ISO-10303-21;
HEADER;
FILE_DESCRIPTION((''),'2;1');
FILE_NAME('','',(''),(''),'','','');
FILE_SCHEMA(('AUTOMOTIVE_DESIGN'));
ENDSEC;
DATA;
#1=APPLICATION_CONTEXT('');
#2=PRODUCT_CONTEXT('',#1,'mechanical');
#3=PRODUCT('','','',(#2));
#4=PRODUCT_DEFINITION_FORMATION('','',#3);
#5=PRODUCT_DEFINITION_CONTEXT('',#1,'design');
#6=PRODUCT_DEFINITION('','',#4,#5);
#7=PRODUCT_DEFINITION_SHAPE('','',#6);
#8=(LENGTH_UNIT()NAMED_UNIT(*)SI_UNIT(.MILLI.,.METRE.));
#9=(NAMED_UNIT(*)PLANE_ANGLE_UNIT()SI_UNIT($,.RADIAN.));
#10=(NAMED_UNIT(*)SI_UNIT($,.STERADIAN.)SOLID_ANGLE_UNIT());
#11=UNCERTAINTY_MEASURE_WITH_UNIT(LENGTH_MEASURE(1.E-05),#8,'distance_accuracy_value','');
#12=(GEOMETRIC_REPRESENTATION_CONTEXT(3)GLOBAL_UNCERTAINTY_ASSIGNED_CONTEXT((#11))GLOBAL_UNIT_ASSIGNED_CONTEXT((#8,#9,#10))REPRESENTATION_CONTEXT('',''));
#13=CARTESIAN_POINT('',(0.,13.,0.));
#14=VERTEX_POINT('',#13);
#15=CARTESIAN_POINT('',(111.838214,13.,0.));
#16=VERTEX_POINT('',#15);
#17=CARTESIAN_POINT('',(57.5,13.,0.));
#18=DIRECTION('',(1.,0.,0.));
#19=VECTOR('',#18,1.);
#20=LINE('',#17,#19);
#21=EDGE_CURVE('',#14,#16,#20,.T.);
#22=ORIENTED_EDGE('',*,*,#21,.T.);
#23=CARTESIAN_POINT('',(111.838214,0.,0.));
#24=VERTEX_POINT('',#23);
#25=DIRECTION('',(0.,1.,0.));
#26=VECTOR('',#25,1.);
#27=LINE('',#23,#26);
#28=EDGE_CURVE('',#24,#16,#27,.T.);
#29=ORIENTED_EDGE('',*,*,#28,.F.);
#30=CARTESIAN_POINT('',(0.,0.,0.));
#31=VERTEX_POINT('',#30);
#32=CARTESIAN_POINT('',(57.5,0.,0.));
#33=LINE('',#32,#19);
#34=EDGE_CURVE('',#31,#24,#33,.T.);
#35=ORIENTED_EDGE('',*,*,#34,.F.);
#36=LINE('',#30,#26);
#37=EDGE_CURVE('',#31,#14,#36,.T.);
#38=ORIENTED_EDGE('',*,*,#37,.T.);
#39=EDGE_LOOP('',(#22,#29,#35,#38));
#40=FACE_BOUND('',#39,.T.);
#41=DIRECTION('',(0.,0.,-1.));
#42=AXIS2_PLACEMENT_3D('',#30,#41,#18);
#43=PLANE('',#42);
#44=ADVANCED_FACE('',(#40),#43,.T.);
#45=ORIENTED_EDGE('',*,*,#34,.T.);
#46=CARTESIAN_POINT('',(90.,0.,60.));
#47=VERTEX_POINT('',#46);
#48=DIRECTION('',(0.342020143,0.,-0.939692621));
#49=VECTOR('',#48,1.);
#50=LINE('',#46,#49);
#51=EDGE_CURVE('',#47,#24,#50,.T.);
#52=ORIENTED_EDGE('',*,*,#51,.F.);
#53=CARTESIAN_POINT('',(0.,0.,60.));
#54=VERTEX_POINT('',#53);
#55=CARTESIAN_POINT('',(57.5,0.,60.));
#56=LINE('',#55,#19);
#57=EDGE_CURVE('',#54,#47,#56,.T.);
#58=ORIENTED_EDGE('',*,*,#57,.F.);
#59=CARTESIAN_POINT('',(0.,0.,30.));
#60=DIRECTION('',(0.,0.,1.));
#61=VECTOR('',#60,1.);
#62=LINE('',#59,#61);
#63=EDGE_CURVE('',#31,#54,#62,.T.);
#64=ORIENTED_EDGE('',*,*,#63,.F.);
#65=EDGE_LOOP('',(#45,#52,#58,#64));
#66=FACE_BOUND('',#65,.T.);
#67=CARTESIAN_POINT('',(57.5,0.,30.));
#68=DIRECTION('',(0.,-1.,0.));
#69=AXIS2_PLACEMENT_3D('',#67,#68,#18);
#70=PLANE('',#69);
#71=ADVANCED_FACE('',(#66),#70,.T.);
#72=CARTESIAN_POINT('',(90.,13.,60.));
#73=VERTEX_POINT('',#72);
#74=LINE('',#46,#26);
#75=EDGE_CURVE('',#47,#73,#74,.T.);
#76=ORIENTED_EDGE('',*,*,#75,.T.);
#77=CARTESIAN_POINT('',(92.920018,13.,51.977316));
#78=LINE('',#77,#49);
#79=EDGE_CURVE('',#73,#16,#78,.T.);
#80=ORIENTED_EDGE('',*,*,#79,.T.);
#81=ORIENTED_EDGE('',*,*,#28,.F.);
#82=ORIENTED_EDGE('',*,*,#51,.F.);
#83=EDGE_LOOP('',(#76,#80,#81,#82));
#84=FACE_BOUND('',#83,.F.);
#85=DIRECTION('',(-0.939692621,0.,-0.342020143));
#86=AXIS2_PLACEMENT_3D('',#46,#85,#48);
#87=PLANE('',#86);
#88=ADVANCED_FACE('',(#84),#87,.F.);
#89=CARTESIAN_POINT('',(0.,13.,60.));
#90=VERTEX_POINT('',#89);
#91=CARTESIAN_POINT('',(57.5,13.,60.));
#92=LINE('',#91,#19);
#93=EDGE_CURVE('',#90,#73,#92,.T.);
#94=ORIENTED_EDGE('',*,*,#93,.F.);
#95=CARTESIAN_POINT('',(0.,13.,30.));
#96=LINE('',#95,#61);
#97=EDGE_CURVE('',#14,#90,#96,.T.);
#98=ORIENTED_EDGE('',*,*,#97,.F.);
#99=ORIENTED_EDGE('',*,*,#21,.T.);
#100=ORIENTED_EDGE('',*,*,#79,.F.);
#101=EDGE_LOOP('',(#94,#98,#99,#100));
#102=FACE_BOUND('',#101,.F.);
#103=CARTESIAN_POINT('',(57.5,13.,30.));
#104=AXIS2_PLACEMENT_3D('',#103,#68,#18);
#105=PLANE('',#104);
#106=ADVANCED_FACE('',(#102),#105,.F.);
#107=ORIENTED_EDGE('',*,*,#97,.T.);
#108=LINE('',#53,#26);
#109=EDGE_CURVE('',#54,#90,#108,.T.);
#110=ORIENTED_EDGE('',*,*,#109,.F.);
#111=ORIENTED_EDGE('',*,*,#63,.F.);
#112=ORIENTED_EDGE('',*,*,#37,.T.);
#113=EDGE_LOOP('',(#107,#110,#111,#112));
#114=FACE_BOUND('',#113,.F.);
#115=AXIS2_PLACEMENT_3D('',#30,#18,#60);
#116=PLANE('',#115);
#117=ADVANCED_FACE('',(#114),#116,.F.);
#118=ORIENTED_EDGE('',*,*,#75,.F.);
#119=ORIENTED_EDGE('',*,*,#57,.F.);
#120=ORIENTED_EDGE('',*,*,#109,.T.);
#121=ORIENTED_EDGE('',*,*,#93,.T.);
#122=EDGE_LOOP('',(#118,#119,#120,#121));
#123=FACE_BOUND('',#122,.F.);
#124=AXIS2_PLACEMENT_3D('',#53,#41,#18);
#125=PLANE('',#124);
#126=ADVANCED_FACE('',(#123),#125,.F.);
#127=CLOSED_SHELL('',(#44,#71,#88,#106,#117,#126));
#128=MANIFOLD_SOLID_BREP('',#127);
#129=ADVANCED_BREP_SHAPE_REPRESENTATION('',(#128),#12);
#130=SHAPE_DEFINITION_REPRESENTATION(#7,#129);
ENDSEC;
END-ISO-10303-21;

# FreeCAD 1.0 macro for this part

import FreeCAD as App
import Part
import Sketcher

V = App.Vector
Q = App.Units.Quantity


def add_polygon(sketch, points):
    """Adds a closed chain of lines whose ends are joined by coincident constraints."""
    first, n = sketch.GeometryCount, len(points)
    for a, b in zip(points, points[1:] + points[:1]):
        sketch.addGeometry(Part.LineSegment(App.Vector(*a, 0), App.Vector(*b, 0)), False)
    for i in range(n):
        sketch.addConstraint(Sketcher.Constraint("Coincident", first + i, 2, first + (i + 1) % n, 1))

doc = App.newDocument("Part")
params = doc.addObject("Spreadsheet::Sheet", "Params")
for row, (alias, value) in enumerate([
    ("sketch1_width", "115 mm"),
    ("sketch1_height", "60 mm"),
    ("pad1_length", "13 mm"),
    ("sketch2_width", "25 mm"),
    ("sketch2_height", "60 mm"),
], start=1):
    params.set(f"A{row}", alias)
    params.set(f"B{row}", "=" + value)
    params.setAlias(f"B{row}", alias)

body = doc.addObject("PartDesign::Body", "Body")

sketch1 = body.newObject("Sketcher::SketchObject", "Sketch")
sketch1.AttachmentSupport = (doc.getObject("XZ_Plane"), [""])
sketch1.MapMode = "FlatFace"
add_polygon(sketch1, [(0, 60), (0, 0), (115, 0), (115, 60)])
sketch1.addConstraint(Sketcher.Constraint("Vertical", 0))
sketch1.addConstraint(Sketcher.Constraint("Horizontal", 1))
sketch1.addConstraint(Sketcher.Constraint("Vertical", 2))
sketch1.addConstraint(Sketcher.Constraint("Horizontal", 3))
sketch1.addConstraint(Sketcher.Constraint("Coincident", 0, 2, -1, 1))
sketch1.addConstraint(Sketcher.Constraint("DistanceX", 1, 1, 1, 2, Q("115 mm")))
sketch1.addConstraint(Sketcher.Constraint("DistanceY", 0, 2, 0, 1, Q("60 mm")))
sketch1.setExpression("Constraints[9]", "Params.sketch1_width")
sketch1.setExpression("Constraints[10]", "Params.sketch1_height")
pad1 = body.newObject("PartDesign::Pad", "Pad")
pad1.Profile = sketch1
pad1.setExpression("Length", "Params.pad1_length")
pad1.Reversed = True

sketch2 = body.newObject("Sketcher::SketchObject", "Sketch001")
sketch2.AttachmentSupport = (doc.getObject("XZ_Plane"), [""])
sketch2.MapMode = "FlatFace"
add_polygon(sketch2, [(111.8, 0), (115, 0), (115, 60), (90, 60)])
sketch2.addConstraint(Sketcher.Constraint("Horizontal", 0))
sketch2.addConstraint(Sketcher.Constraint("Vertical", 1))
sketch2.addConstraint(Sketcher.Constraint("Horizontal", 2))
sketch2.addConstraint(Sketcher.Constraint("PointOnObject", 0, 2, -1))
sketch2.addConstraint(Sketcher.Constraint("DistanceX", 2, 2, 2, 1, Q("25 mm")))
sketch2.addConstraint(Sketcher.Constraint("DistanceY", 1, 1, 1, 2, Q("60 mm")))
sketch2.addConstraint(Sketcher.Constraint("Angle", 3, Q("-70 deg")))
sketch2.addConstraint(Sketcher.Constraint("DistanceX", -1, 1, 0, 2, Q("115 mm")))
sketch2.setExpression("Constraints[8]", "Params.sketch2_width")
sketch2.setExpression("Constraints[9]", "Params.sketch2_height")
pocket1 = body.newObject("PartDesign::Pocket", "Pocket")
pocket1.Profile = sketch2
pocket1.Type = "ThroughAll"

doc.recompute()
